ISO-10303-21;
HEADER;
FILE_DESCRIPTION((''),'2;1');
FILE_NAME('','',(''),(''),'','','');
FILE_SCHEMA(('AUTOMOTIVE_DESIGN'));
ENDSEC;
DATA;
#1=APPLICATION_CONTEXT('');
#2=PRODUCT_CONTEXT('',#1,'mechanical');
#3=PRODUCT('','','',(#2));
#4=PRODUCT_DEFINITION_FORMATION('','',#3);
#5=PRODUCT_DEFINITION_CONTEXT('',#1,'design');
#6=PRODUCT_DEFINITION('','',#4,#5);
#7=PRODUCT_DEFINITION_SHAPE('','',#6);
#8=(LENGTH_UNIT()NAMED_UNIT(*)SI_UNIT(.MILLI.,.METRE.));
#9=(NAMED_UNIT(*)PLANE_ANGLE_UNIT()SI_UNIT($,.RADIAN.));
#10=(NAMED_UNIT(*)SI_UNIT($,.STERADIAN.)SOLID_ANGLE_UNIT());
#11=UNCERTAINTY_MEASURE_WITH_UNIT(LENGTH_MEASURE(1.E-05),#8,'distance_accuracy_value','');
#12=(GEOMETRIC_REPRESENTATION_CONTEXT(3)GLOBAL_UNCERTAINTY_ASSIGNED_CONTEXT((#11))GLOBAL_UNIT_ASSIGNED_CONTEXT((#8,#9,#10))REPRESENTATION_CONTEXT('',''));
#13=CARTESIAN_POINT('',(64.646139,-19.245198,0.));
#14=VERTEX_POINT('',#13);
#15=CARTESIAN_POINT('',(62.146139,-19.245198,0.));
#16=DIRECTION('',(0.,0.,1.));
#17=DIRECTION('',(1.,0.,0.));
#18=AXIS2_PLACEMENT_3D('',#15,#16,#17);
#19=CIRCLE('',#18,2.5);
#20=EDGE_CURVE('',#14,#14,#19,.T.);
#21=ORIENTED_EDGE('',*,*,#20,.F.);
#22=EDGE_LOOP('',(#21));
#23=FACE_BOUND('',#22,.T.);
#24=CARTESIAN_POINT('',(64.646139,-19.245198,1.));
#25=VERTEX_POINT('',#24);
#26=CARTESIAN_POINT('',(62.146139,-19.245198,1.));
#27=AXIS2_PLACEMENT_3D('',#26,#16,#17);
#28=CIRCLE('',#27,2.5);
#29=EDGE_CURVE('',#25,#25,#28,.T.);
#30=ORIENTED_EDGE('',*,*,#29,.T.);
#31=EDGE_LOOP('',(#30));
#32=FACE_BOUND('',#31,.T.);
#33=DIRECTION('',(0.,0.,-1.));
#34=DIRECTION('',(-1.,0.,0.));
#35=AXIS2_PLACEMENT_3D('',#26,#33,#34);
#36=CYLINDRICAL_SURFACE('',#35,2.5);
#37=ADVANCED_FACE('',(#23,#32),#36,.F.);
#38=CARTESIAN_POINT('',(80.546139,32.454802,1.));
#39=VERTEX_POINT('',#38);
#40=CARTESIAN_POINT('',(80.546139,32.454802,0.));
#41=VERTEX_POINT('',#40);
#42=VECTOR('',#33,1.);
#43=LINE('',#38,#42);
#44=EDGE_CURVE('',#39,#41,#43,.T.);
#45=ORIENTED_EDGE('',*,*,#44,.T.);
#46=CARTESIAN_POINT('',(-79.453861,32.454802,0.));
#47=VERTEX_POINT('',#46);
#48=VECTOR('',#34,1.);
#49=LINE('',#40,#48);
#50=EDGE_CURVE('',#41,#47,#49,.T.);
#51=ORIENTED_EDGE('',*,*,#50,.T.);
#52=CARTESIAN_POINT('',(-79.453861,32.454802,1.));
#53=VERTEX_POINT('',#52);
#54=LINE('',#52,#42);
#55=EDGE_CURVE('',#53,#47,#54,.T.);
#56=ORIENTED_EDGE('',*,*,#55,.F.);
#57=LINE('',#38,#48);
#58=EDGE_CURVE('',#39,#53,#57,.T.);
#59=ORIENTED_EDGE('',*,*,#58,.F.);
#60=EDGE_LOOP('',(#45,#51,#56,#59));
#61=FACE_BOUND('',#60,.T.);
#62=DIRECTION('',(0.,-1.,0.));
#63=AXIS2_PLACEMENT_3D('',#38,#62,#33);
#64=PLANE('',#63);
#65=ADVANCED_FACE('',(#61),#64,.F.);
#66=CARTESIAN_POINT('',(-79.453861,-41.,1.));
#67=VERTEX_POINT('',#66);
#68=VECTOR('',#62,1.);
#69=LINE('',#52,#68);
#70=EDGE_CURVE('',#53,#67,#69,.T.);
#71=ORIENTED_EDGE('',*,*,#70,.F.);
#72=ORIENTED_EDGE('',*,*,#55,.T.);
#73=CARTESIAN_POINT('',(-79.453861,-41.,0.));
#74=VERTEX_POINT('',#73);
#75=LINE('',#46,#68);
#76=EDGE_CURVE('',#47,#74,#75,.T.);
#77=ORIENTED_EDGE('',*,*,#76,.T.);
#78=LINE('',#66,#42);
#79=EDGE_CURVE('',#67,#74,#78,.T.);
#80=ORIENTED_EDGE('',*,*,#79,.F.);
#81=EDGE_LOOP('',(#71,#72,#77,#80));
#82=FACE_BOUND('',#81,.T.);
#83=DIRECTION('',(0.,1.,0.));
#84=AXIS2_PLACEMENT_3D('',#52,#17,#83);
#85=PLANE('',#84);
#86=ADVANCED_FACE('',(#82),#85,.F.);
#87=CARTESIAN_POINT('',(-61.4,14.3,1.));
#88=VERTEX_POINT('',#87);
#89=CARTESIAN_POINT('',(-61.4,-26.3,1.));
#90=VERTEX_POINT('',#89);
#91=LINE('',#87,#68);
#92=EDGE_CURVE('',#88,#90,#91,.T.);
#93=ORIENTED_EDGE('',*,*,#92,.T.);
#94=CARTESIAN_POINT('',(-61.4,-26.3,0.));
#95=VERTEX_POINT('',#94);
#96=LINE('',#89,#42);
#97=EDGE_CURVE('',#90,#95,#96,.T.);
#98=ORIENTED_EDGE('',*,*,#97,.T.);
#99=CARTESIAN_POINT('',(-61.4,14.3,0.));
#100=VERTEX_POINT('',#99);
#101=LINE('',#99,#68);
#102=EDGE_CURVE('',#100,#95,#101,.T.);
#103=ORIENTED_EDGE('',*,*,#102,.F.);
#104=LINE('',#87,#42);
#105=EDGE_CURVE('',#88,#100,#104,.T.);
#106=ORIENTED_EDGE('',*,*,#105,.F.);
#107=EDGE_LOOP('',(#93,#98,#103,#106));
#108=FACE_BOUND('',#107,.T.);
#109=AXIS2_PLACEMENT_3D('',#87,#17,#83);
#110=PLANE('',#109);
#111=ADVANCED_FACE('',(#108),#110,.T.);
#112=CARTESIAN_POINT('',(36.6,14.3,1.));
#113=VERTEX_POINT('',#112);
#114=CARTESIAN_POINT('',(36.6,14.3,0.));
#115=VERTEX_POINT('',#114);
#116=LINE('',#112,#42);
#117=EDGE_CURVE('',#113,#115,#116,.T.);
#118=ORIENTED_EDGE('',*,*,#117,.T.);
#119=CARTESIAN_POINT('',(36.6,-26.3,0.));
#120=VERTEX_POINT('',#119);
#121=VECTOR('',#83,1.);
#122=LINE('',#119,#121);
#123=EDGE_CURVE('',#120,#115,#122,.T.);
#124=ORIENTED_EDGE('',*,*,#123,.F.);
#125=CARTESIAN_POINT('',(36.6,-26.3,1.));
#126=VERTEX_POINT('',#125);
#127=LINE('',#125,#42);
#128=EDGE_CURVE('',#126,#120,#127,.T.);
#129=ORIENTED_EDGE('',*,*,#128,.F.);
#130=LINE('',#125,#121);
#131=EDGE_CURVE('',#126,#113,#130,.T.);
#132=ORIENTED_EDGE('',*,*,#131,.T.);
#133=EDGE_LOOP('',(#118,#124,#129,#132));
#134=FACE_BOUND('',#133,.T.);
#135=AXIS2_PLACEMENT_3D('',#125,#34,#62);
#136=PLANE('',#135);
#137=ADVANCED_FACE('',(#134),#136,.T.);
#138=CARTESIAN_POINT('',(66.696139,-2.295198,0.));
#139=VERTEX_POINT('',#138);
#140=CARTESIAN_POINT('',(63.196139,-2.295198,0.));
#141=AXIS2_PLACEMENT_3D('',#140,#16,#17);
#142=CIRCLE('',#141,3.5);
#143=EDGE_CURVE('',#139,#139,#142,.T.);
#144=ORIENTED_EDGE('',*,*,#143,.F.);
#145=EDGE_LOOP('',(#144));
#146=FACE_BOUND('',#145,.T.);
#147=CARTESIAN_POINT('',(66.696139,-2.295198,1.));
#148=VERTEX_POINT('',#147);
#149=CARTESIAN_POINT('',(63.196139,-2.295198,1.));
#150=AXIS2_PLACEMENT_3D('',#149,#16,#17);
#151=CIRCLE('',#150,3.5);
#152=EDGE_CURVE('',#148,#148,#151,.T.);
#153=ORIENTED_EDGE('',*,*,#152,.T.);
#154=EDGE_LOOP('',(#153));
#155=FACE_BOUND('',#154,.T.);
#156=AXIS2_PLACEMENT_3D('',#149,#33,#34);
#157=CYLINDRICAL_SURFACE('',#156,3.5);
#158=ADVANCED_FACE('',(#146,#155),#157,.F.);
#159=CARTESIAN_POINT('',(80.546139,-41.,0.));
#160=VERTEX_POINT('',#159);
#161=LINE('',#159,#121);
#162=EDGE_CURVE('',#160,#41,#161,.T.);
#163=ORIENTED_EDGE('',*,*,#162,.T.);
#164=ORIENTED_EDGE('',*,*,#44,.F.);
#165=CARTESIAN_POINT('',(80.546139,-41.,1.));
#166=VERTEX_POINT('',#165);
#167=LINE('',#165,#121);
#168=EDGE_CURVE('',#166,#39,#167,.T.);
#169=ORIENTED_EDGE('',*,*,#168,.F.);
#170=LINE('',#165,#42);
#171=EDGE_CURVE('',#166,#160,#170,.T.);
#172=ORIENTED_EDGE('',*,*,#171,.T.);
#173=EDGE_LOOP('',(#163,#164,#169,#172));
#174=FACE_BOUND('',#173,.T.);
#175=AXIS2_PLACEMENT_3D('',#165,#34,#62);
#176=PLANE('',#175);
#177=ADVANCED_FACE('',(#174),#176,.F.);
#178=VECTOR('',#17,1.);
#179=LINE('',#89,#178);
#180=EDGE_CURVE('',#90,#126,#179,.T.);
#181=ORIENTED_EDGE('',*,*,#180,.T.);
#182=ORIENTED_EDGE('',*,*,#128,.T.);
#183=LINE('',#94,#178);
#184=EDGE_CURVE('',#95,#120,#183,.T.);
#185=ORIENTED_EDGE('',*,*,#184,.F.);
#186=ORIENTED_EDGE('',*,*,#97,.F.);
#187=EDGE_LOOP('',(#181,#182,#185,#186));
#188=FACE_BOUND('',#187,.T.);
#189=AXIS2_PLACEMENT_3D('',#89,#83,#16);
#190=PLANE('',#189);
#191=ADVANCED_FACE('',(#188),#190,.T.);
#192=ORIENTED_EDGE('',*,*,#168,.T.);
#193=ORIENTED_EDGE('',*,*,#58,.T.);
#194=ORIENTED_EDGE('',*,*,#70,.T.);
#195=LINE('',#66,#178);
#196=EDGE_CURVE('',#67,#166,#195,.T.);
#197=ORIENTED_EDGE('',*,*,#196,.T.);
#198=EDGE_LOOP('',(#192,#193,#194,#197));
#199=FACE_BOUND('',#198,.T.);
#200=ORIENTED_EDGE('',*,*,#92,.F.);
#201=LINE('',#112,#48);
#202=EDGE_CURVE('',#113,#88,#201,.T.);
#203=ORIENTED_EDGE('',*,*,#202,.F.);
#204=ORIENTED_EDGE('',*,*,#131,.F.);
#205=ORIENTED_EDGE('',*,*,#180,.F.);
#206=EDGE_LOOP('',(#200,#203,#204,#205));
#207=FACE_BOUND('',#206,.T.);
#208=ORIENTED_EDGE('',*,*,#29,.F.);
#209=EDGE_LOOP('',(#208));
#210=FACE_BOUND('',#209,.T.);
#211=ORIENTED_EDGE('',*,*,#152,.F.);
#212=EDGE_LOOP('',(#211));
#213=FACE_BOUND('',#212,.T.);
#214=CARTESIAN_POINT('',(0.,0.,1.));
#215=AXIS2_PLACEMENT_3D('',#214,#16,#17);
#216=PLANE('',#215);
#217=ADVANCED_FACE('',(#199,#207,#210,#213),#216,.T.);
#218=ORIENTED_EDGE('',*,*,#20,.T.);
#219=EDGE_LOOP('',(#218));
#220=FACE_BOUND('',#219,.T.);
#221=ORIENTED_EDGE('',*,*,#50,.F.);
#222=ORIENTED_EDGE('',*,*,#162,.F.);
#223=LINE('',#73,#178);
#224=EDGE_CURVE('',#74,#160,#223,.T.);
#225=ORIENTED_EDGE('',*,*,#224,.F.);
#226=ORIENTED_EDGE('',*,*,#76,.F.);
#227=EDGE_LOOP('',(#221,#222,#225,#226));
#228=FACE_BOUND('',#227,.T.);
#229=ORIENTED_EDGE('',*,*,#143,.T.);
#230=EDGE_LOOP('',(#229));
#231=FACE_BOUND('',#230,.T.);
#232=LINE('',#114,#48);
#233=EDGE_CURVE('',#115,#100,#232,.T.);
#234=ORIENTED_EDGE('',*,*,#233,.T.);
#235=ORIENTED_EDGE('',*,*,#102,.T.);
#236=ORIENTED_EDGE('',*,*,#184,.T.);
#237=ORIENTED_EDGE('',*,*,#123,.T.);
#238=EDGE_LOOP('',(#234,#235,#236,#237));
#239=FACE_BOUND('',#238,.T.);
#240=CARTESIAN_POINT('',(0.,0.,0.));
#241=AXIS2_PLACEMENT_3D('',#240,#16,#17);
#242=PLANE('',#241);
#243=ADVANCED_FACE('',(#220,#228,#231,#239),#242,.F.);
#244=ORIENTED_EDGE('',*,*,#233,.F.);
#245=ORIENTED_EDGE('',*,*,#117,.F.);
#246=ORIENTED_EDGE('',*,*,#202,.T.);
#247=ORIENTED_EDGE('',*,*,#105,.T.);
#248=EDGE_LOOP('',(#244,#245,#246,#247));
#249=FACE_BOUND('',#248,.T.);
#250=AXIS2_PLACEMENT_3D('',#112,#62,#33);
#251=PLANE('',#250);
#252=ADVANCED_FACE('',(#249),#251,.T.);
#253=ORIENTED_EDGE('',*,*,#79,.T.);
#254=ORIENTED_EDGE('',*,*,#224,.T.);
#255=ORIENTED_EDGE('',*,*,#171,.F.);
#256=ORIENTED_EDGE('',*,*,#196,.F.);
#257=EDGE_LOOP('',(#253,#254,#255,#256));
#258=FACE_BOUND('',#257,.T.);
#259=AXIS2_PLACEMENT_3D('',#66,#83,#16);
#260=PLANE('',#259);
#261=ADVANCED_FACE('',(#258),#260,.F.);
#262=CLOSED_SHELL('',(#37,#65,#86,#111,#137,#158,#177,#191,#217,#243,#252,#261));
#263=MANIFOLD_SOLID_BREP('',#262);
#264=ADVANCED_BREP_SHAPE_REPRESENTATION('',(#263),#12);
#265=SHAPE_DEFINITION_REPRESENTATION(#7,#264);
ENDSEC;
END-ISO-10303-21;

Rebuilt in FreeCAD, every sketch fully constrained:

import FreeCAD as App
import Part
import Sketcher

V = App.Vector


def add_polygon(sketch, points):
    """Adds a closed chain of lines whose ends are joined by coincident constraints."""
    first, n = sketch.GeometryCount, len(points)
    for a, b in zip(points, points[1:] + points[:1]):
        sketch.addGeometry(Part.LineSegment(App.Vector(*a, 0), App.Vector(*b, 0)), False)
    for i in range(n):
        sketch.addConstraint(Sketcher.Constraint("Coincident", first + i, 2, first + (i + 1) % n, 1))

doc = App.newDocument("Part")
body = doc.addObject("PartDesign::Body", "Body")

# Sketch on XY plane
sketch1 = body.newObject("Sketcher::SketchObject", "Sketch")
sketch1.AttachmentSupport = (doc.getObject("XY_Plane"), [""])
sketch1.MapMode = "FlatFace"
add_polygon(sketch1, [(-79.5, 32.5), (-79.5, -41), (80.5, -41), (80.5, 32.5)])  # lines 0-3
add_polygon(sketch1, [(36.6, -26.3), (-61.4, -26.3), (-61.4, 14.3), (36.6, 14.3)])  # lines 4-7
sketch1.addGeometry(Part.Circle(V(62.1, -19.2, 0), V(0, 0, 1), 2.5), False)  # 8
sketch1.addGeometry(Part.Circle(V(63.2, -2.3, 0), V(0, 0, 1), 3.5), False)  # 9
sketch1.addConstraint(Sketcher.Constraint("Vertical", 0))
sketch1.addConstraint(Sketcher.Constraint("Horizontal", 1))
sketch1.addConstraint(Sketcher.Constraint("Vertical", 2))
sketch1.addConstraint(Sketcher.Constraint("Horizontal", 3))
sketch1.addConstraint(Sketcher.Constraint("Horizontal", 4))
sketch1.addConstraint(Sketcher.Constraint("Vertical", 5))
sketch1.addConstraint(Sketcher.Constraint("Horizontal", 6))
sketch1.addConstraint(Sketcher.Constraint("Vertical", 7))
sketch1.addConstraint(Sketcher.Constraint("Diameter", 8, 5.0))
sketch1.addConstraint(Sketcher.Constraint("Diameter", 9, 7.0))
sketch1.addConstraint(Sketcher.Constraint("DistanceX", 1, 1, 1, 2, 160.0))
sketch1.addConstraint(Sketcher.Constraint("DistanceX", 4, 2, 4, 1, 98.0))
sketch1.addConstraint(Sketcher.Constraint("DistanceY", 5, 1, 5, 2, 40.6))
sketch1.addConstraint(Sketcher.Constraint("DistanceY", 0, 2, -1, 1, 41.0))
sketch1.addConstraint(Sketcher.Constraint("DistanceX", 4, 2, -1, 1, 61.4))
sketch1.addConstraint(Sketcher.Constraint("DistanceY", 4, 2, -1, 1, 26.3))
sketch1.addConstraint(Sketcher.Constraint("DistanceX", 0, 2, 8, 3, 141.6))
sketch1.addConstraint(Sketcher.Constraint("DistanceY", 8, 3, 2, 2, 51.7))
sketch1.addConstraint(Sketcher.Constraint("DistanceX", 8, 3, 9, 3, 1.05))
sketch1.addConstraint(Sketcher.Constraint("DistanceY", 8, 3, 9, 3, 16.95))
sketch1.addConstraint(Sketcher.Constraint("DistanceY", 0, 2, 0, 1, 73.454802))
sketch1.addConstraint(Sketcher.Constraint("DistanceX", -1, 1, 8, 3, 62.146139))
pad1 = body.newObject("PartDesign::Pad", "Pad")
pad1.Profile = sketch1
pad1.Length = 1

doc.recompute()
